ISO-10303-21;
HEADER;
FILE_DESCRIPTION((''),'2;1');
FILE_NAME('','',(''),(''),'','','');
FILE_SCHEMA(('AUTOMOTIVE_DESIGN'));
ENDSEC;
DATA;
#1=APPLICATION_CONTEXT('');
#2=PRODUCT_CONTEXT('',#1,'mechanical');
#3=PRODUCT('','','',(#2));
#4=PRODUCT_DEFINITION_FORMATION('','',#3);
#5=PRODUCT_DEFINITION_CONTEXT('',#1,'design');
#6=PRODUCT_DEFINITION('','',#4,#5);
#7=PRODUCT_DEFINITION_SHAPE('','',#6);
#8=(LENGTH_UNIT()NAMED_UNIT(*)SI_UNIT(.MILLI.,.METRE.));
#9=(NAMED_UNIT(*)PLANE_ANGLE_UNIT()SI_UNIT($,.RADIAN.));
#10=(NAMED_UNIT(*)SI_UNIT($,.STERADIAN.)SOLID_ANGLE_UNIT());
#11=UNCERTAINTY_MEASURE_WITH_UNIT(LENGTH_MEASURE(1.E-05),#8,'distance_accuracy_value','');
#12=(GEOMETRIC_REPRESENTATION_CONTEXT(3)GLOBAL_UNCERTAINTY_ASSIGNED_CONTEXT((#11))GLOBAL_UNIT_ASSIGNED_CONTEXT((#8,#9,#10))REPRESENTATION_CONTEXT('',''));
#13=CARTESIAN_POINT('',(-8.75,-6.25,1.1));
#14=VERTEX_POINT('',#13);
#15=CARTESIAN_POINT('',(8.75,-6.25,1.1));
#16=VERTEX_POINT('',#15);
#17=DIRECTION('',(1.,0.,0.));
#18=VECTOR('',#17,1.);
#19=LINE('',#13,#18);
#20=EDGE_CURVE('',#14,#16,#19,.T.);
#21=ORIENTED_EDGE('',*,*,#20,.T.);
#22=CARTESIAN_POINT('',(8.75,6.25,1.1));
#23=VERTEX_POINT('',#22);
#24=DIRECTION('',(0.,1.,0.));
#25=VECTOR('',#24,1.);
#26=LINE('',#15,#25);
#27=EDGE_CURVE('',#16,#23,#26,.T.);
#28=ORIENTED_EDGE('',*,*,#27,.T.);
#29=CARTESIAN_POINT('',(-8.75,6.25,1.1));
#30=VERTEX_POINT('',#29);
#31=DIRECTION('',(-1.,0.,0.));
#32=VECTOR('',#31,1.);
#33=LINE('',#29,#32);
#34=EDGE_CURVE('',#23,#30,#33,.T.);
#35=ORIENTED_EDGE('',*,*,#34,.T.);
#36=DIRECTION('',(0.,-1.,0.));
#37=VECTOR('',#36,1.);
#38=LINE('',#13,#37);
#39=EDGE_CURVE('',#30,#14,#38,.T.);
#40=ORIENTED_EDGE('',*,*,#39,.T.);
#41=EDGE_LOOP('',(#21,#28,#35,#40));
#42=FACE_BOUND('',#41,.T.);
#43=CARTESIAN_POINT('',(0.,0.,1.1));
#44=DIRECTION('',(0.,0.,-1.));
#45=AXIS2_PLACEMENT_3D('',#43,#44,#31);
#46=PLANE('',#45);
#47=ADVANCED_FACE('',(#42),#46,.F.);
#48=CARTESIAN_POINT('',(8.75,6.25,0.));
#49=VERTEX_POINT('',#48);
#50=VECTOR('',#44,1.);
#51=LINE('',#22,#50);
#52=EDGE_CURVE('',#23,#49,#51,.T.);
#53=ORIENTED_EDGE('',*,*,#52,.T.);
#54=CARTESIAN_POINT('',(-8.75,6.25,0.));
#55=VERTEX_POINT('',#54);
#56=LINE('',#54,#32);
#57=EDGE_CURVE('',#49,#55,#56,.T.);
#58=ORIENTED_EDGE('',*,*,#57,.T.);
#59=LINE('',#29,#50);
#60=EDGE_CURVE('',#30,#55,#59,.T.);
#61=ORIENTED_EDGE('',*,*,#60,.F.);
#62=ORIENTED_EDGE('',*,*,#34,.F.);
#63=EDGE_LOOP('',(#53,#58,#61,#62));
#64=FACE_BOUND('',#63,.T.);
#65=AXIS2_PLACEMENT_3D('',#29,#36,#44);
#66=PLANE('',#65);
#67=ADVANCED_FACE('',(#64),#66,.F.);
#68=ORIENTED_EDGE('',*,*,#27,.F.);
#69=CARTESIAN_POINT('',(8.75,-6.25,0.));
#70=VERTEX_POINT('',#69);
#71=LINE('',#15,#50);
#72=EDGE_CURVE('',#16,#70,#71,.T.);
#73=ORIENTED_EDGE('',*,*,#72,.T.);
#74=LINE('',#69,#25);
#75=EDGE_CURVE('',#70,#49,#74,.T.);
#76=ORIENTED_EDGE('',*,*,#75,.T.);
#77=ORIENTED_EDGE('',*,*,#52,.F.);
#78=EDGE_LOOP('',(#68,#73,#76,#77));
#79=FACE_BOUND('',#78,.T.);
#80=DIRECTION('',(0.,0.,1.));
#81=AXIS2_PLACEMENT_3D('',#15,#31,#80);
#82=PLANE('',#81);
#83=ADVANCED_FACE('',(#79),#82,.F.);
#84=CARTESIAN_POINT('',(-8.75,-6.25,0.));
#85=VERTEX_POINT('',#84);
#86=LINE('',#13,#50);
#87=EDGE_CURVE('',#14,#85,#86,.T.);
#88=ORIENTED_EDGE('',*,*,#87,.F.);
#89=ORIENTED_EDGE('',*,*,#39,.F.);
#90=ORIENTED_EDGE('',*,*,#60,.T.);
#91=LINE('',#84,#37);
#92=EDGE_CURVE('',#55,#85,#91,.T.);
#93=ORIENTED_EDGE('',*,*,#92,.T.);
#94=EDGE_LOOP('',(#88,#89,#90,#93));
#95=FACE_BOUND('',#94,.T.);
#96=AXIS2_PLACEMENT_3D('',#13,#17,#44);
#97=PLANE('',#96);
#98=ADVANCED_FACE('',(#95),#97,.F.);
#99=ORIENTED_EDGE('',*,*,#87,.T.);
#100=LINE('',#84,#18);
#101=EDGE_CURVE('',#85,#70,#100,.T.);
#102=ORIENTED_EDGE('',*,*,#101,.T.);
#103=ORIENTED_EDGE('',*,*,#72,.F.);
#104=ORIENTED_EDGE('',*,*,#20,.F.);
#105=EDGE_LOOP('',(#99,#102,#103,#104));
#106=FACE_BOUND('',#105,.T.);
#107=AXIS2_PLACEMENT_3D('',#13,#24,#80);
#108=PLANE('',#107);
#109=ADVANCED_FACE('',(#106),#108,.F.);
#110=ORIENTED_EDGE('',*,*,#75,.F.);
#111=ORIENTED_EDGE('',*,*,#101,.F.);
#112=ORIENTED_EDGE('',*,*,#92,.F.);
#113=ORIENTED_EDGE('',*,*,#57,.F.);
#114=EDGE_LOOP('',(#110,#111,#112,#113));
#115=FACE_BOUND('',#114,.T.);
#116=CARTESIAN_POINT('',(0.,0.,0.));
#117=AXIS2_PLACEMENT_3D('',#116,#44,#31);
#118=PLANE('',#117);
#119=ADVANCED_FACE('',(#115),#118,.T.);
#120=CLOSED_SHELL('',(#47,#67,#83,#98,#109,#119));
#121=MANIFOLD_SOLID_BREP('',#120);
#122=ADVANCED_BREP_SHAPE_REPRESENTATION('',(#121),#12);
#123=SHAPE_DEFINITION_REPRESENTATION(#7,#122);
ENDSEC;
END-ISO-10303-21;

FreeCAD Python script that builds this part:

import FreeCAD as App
import Part
import Sketcher
from FreeCAD import Vector

doc = App.newDocument("Part")
params = doc.addObject("Spreadsheet::Sheet", "Params")
for row, (alias, value) in enumerate([
    ("sketch1_width", "17.5 mm"),
    ("sketch1_height", "12.5 mm"),
    ("pad1_length", "1.1 mm"),
], start=1):
    params.set(f"A{row}", alias)
    params.set(f"B{row}", "=" + value)
    params.setAlias(f"B{row}", alias)

body = doc.addObject("PartDesign::Body", "Body")

# Sketch on XY plane
sketch1 = body.newObject("Sketcher::SketchObject", "Sketch")
sketch1.AttachmentSupport = (doc.getObject("XY_Plane"), [""])
sketch1.MapMode = "FlatFace"
sketch1.addGeometry([
    Part.LineSegment(Vector(-9, 6, 0), Vector(-9, -6, 0)),
    Part.LineSegment(Vector(-9, -6, 0), Vector(9, -6, 0)),
    Part.LineSegment(Vector(9, -6, 0), Vector(9, 6, 0)),
    Part.LineSegment(Vector(9, 6, 0), Vector(-9, 6, 0)),
], False)
sketch1.addConstraint([
    Sketcher.Constraint("Coincident", 0, 2, 1, 1),
    Sketcher.Constraint("Coincident", 1, 2, 2, 1),
    Sketcher.Constraint("Coincident", 2, 2, 3, 1),
    Sketcher.Constraint("Coincident", 3, 2, 0, 1),
    Sketcher.Constraint("Vertical", 0),
    Sketcher.Constraint("Horizontal", 1),
    Sketcher.Constraint("Vertical", 2),
    Sketcher.Constraint("Horizontal", 3),
    Sketcher.Constraint("Symmetric", 0, 2, 2, 2, -1, 1),
    Sketcher.Constraint("DistanceX", 1, 1, 1, 2, 17.5),
    Sketcher.Constraint("DistanceY", 0, 2, 0, 1, 12.5),
])
sketch1.setExpression("Constraints[9]", "Params.sketch1_width")
sketch1.setExpression("Constraints[10]", "Params.sketch1_height")
pad1 = body.newObject("PartDesign::Pad", "Pad")
pad1.Profile = sketch1
pad1.setExpression("Length", "Params.pad1_length")

doc.recompute()
